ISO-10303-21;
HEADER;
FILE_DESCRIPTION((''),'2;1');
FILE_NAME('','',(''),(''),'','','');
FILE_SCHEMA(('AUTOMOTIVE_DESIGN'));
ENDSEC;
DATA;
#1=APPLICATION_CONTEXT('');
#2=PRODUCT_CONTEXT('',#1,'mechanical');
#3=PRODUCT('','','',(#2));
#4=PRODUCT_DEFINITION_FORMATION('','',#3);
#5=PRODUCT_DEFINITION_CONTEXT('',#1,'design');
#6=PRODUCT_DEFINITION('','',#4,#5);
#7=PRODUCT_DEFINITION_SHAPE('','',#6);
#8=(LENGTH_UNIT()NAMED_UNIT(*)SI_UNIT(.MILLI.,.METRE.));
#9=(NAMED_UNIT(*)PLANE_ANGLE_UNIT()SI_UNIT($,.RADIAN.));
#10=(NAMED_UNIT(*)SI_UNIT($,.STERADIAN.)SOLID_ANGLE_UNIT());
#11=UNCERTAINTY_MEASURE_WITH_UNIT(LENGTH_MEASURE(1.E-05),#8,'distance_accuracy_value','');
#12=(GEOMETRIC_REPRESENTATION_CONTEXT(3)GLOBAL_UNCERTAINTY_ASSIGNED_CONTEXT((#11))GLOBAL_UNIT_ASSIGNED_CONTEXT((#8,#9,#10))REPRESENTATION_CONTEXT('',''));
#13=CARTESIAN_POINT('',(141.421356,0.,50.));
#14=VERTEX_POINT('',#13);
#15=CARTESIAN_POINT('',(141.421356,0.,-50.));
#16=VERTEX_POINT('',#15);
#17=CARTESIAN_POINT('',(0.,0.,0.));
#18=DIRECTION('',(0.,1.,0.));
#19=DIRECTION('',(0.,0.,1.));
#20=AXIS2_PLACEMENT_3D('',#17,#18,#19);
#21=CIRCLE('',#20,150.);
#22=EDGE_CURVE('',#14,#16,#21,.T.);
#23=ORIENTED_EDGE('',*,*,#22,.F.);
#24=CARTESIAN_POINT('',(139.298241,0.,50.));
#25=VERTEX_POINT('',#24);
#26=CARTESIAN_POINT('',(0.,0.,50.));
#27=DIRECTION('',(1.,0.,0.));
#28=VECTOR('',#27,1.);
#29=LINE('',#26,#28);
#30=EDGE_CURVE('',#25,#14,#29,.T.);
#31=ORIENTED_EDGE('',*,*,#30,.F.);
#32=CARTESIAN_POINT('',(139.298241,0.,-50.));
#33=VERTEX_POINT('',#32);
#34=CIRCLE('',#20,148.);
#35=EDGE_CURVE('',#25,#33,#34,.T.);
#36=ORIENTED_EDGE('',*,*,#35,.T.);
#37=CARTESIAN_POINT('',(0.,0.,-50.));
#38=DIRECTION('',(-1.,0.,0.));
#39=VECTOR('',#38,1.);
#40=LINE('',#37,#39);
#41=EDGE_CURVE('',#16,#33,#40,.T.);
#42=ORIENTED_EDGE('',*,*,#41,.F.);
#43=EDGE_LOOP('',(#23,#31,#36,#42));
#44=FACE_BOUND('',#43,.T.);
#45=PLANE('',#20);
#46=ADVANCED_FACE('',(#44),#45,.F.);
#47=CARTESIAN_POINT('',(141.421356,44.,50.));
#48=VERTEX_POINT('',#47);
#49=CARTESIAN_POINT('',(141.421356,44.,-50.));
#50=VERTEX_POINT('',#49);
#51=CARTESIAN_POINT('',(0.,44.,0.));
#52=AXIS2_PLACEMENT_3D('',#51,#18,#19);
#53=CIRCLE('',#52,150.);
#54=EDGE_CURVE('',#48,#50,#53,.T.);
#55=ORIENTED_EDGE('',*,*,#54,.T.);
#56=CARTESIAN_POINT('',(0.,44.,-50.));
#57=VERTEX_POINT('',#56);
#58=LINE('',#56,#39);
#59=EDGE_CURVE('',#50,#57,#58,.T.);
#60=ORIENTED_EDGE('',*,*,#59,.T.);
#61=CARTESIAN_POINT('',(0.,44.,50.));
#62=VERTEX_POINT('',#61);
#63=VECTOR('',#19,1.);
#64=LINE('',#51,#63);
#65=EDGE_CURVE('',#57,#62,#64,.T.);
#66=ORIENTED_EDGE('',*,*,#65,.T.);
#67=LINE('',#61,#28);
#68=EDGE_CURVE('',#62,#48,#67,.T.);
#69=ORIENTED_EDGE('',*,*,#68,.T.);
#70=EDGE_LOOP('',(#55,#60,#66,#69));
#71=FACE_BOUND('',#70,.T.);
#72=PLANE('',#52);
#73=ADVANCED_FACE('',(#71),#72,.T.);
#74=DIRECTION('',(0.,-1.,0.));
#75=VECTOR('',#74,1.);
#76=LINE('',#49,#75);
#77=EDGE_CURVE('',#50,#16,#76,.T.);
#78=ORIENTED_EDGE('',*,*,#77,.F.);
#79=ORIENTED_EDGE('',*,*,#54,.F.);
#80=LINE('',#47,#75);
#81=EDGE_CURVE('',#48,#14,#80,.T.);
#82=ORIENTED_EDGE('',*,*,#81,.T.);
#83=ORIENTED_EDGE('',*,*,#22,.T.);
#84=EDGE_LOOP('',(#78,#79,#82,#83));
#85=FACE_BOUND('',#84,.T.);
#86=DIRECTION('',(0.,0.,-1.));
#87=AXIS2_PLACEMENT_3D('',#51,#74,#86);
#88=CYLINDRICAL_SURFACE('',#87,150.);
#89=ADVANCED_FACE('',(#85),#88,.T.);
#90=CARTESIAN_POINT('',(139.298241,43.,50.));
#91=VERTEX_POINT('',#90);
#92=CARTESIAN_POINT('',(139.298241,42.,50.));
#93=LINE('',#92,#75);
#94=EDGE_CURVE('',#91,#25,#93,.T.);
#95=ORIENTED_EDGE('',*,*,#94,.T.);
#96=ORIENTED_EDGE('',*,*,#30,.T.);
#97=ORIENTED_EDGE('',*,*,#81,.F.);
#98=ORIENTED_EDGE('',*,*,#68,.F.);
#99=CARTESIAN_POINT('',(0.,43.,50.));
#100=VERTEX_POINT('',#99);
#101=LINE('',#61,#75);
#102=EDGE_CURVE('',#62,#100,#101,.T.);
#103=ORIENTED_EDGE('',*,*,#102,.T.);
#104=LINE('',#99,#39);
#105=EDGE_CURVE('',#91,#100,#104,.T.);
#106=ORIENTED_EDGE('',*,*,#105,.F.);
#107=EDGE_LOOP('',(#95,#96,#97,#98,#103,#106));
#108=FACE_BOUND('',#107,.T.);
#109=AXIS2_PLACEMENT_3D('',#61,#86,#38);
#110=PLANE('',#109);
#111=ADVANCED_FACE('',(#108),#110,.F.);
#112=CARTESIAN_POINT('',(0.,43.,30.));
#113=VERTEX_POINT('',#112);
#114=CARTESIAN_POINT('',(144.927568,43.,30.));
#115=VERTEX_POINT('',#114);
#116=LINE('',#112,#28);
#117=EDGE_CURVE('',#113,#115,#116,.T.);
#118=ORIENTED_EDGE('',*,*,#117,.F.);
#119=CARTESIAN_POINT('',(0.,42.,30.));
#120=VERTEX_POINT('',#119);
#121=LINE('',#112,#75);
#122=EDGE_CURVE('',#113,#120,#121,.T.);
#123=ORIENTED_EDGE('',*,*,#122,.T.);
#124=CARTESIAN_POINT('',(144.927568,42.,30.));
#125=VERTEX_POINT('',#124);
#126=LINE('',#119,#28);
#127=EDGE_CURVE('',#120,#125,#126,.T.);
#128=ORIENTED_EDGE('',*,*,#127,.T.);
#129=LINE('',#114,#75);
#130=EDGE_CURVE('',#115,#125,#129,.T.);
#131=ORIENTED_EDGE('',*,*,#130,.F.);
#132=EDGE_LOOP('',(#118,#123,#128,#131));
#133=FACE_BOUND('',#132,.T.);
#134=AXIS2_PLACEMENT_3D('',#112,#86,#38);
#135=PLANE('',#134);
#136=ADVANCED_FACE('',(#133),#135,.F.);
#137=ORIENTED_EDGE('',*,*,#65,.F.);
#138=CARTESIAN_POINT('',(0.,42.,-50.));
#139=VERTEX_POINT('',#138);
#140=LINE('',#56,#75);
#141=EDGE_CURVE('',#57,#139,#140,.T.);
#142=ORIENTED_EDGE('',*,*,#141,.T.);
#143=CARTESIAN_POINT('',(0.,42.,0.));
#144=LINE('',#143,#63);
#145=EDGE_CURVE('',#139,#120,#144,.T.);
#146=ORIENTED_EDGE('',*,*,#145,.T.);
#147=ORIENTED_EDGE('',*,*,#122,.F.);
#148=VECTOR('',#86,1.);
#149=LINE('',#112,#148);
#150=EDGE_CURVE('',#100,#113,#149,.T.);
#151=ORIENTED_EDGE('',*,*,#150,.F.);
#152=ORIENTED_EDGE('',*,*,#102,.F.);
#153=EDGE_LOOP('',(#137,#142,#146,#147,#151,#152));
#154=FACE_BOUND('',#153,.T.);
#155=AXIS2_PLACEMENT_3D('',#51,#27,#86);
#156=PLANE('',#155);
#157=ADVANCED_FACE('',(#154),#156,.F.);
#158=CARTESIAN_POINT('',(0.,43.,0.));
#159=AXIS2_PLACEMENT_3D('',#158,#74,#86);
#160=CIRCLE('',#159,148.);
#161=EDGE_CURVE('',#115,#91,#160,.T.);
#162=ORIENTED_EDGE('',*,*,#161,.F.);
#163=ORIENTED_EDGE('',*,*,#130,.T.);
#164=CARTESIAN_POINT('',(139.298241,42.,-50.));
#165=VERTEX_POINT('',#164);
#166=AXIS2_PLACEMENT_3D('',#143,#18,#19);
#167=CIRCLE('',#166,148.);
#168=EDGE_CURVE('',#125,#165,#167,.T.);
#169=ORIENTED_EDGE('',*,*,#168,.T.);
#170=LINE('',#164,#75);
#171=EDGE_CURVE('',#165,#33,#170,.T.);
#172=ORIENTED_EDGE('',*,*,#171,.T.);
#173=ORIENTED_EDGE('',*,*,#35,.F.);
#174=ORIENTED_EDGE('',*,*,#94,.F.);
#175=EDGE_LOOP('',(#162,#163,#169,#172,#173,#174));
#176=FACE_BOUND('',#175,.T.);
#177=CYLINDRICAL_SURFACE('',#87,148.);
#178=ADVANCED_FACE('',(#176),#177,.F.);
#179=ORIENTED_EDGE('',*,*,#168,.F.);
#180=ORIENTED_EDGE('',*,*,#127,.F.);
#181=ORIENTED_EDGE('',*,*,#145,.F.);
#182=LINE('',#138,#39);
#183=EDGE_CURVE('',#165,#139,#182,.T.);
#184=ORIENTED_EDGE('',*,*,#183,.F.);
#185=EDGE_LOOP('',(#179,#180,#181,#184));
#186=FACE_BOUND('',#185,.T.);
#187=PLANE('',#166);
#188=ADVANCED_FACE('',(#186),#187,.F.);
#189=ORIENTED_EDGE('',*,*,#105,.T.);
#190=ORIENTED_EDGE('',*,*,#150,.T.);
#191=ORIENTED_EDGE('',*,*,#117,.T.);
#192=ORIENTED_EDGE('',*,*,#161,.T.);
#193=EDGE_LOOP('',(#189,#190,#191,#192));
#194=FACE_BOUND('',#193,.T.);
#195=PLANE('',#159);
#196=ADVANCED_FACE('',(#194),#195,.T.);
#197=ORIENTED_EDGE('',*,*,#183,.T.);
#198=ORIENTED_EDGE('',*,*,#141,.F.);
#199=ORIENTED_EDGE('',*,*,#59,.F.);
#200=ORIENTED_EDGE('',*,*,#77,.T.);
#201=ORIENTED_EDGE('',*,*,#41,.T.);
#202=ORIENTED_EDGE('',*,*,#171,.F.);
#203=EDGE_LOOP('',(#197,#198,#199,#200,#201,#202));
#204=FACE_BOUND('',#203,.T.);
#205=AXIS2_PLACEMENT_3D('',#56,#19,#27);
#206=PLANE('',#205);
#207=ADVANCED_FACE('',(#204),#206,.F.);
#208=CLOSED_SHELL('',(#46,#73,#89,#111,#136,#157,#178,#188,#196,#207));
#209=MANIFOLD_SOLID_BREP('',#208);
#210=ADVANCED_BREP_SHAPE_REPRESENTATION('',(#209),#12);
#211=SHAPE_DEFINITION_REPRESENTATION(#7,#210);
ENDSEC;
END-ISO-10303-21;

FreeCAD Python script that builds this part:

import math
import FreeCAD as App
import Part
import Sketcher

V = App.Vector


def faces_at(feature, points):
    """Names of the faces that lie closest to the given points."""
    faces = feature.Shape.Faces
    near = lambda p: min(range(len(faces)), key=lambda i: faces[i].distToShape(Part.Vertex(*p))[0])
    return sorted({f"Face{near(p) + 1}" for p in points})

doc = App.newDocument("Part")
params = doc.addObject("Spreadsheet::Sheet", "Params")
for row, (alias, value) in enumerate([
    ("sketch1_radius", "150 mm"),
    ("sketch1_height", "100 mm"),
    ("pad1_length", "44 mm"),
    ("thickness_wall", "2 mm"),
    ("sketch2_radius", "148 mm"),
    ("sketch2_height", "20 mm"),
    ("pocket1_length", "1 mm"),
], start=1):
    params.set(f"A{row}", alias)
    params.set(f"B{row}", "=" + value)
    params.setAlias(f"B{row}", alias)

body = doc.addObject("PartDesign::Body", "Body")

sketch1 = body.newObject("Sketcher::SketchObject", "Sketch")
sketch1.AttachmentSupport = (doc.getObject("XZ_Plane"), [""])
sketch1.MapMode = "FlatFace"
sketch1.addGeometry(Part.LineSegment(V(141, -50, 0), V(0, -50, 0)), False)
sketch1.addGeometry(Part.LineSegment(V(0, -50, 0), V(0, 50, 0)), False)
sketch1.addGeometry(Part.LineSegment(V(0, 50, 0), V(141, 50, 0)), False)
sketch1.addGeometry(Part.ArcOfCircle(Part.Circle(V(0, 0, 0), V(0, 0, 1), 150), math.radians(-19), math.radians(19)), False)
sketch1.addConstraint(Sketcher.Constraint("Coincident", 0, 2, 1, 1))
sketch1.addConstraint(Sketcher.Constraint("Coincident", 1, 2, 2, 1))
sketch1.addConstraint(Sketcher.Constraint("Coincident", 2, 2, 3, 2))
sketch1.addConstraint(Sketcher.Constraint("Coincident", 3, 1, 0, 1))
sketch1.addConstraint(Sketcher.Constraint("Horizontal", 0))
sketch1.addConstraint(Sketcher.Constraint("Vertical", 1))
sketch1.addConstraint(Sketcher.Constraint("Horizontal", 2))
sketch1.addConstraint(Sketcher.Constraint("Coincident", 3, 3, -1, 1))
sketch1.addConstraint(Sketcher.Constraint("Symmetric", 0, 2, 1, 2, -1, 1))
sketch1.addConstraint(Sketcher.Constraint("Radius", 3, 150.0))
sketch1.addConstraint(Sketcher.Constraint("DistanceY", 1, 1, 1, 2, 100.0))
sketch1.setExpression("Constraints[9]", "Params.sketch1_radius")
sketch1.setExpression("Constraints[10]", "Params.sketch1_height")
pad1 = body.newObject("PartDesign::Pad", "Pad")
pad1.Profile = sketch1
pad1.setExpression("Length", "Params.pad1_length")
pad1.Reversed = True
doc.recompute()

thickness = body.newObject("PartDesign::Thickness", "Thickness")
thickness.Base = (pad1, faces_at(pad1, [
    (70.711, 22, 50),
    (75, 0, 0),
    (0, 22, 0),
    (70.711, 22, -50),
]))
thickness.setExpression("Value", "Params.thickness_wall")
thickness.Reversed = True
thickness.Join = "Intersection"

sketch2 = body.newObject("Sketcher::SketchObject", "Sketch001")
sketch2.AttachmentSupport = (doc.getObject("XZ_Plane"), [""])
sketch2.MapMode = "FlatFace"
sketch2.AttachmentOffset = App.Placement(V(0, 0, -42), App.Rotation())
sketch2.addGeometry(Part.LineSegment(V(0, 30, 0), V(145, 30, 0)), False)
sketch2.addGeometry(Part.ArcOfCircle(Part.Circle(V(0, 0, 0), V(0, 0, 1), 148), math.radians(11.7), math.radians(19.75)), False)
sketch2.addGeometry(Part.LineSegment(V(139, 50, 0), V(0, 50, 0)), False)
sketch2.addGeometry(Part.LineSegment(V(0, 50, 0), V(0, 30, 0)), False)
sketch2.addConstraint(Sketcher.Constraint("Coincident", 0, 2, 1, 1))
sketch2.addConstraint(Sketcher.Constraint("Coincident", 1, 2, 2, 1))
sketch2.addConstraint(Sketcher.Constraint("Coincident", 2, 2, 3, 1))
sketch2.addConstraint(Sketcher.Constraint("Coincident", 3, 2, 0, 1))
sketch2.addConstraint(Sketcher.Constraint("Horizontal", 0))
sketch2.addConstraint(Sketcher.Constraint("Horizontal", 2))
sketch2.addConstraint(Sketcher.Constraint("Vertical", 3))
sketch2.addConstraint(Sketcher.Constraint("Coincident", 1, 3, -1, 1))
sketch2.addConstraint(Sketcher.Constraint("PointOnObject", 2, 2, -2))
sketch2.addConstraint(Sketcher.Constraint("Radius", 1, 148.0))
sketch2.addConstraint(Sketcher.Constraint("DistanceY", 3, 2, 3, 1, 20.0))
sketch2.addConstraint(Sketcher.Constraint("DistanceY", -1, 1, 0, 2, 30.0))
sketch2.setExpression("Constraints[9]", "Params.sketch2_radius")
sketch2.setExpression("Constraints[10]", "Params.sketch2_height")
pocket1 = body.newObject("PartDesign::Pocket", "Pocket")
pocket1.Profile = sketch2
pocket1.setExpression("Length", "Params.pocket1_length")

doc.recompute()
